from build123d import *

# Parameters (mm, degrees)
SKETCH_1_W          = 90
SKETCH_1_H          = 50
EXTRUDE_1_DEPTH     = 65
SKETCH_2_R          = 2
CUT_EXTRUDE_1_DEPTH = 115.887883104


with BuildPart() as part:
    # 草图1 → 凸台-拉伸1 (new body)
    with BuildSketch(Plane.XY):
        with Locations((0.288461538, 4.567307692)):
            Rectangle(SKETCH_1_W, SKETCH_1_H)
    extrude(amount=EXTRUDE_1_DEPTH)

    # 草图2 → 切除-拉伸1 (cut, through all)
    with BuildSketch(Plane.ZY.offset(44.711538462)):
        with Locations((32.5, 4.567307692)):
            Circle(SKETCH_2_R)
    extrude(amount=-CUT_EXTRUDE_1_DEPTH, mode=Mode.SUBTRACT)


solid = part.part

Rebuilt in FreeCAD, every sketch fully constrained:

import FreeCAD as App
import Part
import Sketcher

V = App.Vector
Q = App.Units.Quantity

doc = App.newDocument("Part")
body = doc.addObject("PartDesign::Body", "Body")

sketch1 = body.newObject("Sketcher::SketchObject", "Sketch")
sketch1.AttachmentSupport = (doc.getObject("XY_Plane"), [""])
sketch1.MapMode = "FlatFace"
sketch1.addGeometry(Part.LineSegment(V(-45, 30, 0), V(-45, -20, 0)), False)
sketch1.addGeometry(Part.LineSegment(V(-45, -20, 0), V(45, -20, 0)), False)
sketch1.addGeometry(Part.LineSegment(V(45, -20, 0), V(45, 30, 0)), False)
sketch1.addGeometry(Part.LineSegment(V(45, 30, 0), V(-45, 30, 0)), False)
sketch1.addConstraint(Sketcher.Constraint("Coincident", 0, 2, 1, 1))
sketch1.addConstraint(Sketcher.Constraint("Coincident", 1, 2, 2, 1))
sketch1.addConstraint(Sketcher.Constraint("Coincident", 2, 2, 3, 1))
sketch1.addConstraint(Sketcher.Constraint("Coincident", 3, 2, 0, 1))
sketch1.addConstraint(Sketcher.Constraint("Vertical", 0))
sketch1.addConstraint(Sketcher.Constraint("Horizontal", 1))
sketch1.addConstraint(Sketcher.Constraint("Vertical", 2))
sketch1.addConstraint(Sketcher.Constraint("Horizontal", 3))
sketch1.addConstraint(Sketcher.Constraint("DistanceX", 1, 1, 1, 2, Q("90 mm")))
sketch1.addConstraint(Sketcher.Constraint("DistanceY", 0, 2, 0, 1, Q("50 mm")))
sketch1.addConstraint(Sketcher.Constraint("DistanceX", 0, 2, -1, 1, Q("44.711538 mm")))
sketch1.addConstraint(Sketcher.Constraint("DistanceY", 0, 2, -1, 1, Q("20.432692 mm")))
pad1 = body.newObject("PartDesign::Pad", "Pad")
pad1.Profile = sketch1
pad1.Length = 65

sketch2 = body.newObject("Sketcher::SketchObject", "Sketch001")
sketch2.AttachmentSupport = (doc.getObject("YZ_Plane"), [""])
sketch2.MapMode = "FlatFace"
sketch2.AttachmentOffset = App.Placement(V(0, 0, -44.711538), App.Rotation())
sketch2.addGeometry(Part.Circle(V(4.6, 32.5, 0), V(0, 0, 1), 2), False)
sketch2.addConstraint(Sketcher.Constraint("Diameter", 0, Q("4 mm")))
sketch2.addConstraint(Sketcher.Constraint("DistanceY", -1, 1, 0, 3, Q("32.5 mm")))
sketch2.addConstraint(Sketcher.Constraint("DistanceX", -1, 1, 0, 3, Q("4.567308 mm")))
pocket1 = body.newObject("PartDesign::Pocket", "Pocket")
pocket1.Profile = sketch2
pocket1.Type = "ThroughAll"
pocket1.Reversed = True

doc.recompute()
